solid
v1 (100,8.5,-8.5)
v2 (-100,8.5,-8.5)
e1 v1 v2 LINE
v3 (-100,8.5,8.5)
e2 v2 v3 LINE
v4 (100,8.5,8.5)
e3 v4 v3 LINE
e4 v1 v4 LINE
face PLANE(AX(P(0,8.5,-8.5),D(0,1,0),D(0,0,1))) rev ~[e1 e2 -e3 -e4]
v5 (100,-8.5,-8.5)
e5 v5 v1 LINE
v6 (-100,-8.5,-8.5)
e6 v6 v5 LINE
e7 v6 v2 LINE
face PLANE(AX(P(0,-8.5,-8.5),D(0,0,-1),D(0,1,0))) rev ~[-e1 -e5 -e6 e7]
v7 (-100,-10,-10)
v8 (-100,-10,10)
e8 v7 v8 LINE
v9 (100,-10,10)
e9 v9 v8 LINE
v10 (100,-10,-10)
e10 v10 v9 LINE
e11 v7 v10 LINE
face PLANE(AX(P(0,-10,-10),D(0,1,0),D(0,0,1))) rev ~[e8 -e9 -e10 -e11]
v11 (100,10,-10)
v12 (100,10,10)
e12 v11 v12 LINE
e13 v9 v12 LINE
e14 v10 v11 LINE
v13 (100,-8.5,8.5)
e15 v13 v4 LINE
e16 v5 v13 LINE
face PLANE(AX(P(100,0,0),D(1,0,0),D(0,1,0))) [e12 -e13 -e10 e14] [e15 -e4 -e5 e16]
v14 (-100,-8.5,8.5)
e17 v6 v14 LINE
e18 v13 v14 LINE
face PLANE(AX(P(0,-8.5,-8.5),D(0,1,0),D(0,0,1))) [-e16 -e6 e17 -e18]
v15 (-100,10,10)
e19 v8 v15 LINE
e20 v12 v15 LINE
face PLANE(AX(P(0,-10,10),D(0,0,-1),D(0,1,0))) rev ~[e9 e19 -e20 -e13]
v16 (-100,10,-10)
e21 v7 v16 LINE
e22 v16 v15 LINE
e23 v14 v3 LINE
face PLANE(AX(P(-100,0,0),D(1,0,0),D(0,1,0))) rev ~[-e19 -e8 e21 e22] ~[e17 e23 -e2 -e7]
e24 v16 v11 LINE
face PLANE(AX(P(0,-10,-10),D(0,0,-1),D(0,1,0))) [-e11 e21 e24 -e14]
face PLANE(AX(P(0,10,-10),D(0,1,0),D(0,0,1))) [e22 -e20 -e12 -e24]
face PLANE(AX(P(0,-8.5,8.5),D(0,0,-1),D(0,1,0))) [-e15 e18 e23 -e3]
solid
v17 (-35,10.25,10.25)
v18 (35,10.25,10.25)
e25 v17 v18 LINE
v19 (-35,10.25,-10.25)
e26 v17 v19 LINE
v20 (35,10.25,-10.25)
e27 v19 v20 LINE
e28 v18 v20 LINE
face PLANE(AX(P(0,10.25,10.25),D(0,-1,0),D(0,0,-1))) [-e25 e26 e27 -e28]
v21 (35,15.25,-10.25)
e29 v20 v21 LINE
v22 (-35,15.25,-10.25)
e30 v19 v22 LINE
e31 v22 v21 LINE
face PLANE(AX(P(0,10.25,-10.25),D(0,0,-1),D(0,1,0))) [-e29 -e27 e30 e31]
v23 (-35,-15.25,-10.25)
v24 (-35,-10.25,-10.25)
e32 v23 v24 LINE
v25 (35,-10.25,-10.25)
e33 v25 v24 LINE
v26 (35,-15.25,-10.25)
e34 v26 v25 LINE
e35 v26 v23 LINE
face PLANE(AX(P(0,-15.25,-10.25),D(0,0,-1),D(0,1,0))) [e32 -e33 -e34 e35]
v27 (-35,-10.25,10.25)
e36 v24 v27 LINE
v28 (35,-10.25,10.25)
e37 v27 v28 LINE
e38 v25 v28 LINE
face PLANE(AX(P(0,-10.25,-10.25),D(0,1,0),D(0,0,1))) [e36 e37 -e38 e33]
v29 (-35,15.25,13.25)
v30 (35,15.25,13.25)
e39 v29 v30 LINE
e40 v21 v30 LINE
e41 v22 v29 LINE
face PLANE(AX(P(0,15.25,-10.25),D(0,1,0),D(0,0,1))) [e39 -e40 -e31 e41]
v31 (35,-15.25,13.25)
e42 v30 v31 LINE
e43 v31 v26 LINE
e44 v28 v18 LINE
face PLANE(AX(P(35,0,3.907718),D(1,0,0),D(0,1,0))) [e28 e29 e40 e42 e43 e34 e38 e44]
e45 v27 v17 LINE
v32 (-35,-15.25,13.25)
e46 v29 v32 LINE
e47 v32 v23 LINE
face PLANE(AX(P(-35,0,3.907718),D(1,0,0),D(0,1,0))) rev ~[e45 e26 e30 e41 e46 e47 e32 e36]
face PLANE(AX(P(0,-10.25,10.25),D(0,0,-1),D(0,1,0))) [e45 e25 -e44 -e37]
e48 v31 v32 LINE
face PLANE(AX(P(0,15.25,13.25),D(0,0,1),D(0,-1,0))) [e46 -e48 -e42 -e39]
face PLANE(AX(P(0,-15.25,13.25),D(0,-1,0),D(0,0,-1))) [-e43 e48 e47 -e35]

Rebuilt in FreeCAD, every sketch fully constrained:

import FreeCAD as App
import Part
import Sketcher
from FreeCAD import Vector

doc = App.newDocument("Part")
body = doc.addObject("PartDesign::Body", "Body")

# Sketch on YZ plane
sketch1 = body.newObject("Sketcher::SketchObject", "Sketch")
sketch1.AttachmentSupport = (doc.getObject("YZ_Plane"), [""])
sketch1.MapMode = "FlatFace"
sketch1.addGeometry([
    Part.LineSegment(Vector(-10, 10, 0), Vector(-10, -10, 0)),  # 0
    Part.LineSegment(Vector(-10, -10, 0), Vector(10, -10, 0)),  # 1
    Part.LineSegment(Vector(10, -10, 0), Vector(10, 10, 0)),  # 2
    Part.LineSegment(Vector(10, 10, 0), Vector(-10, 10, 0)),  # 3
    Part.LineSegment(Vector(8, -8, 0), Vector(-8, -8, 0)),  # 4
    Part.LineSegment(Vector(-8, -8, 0), Vector(-8, 8, 0)),  # 5
    Part.LineSegment(Vector(-8, 8, 0), Vector(8, 8, 0)),  # 6
    Part.LineSegment(Vector(8, 8, 0), Vector(8, -8, 0)),  # 7
], False)
sketch1.addConstraint([
    Sketcher.Constraint("Coincident", 0, 2, 1, 1),
    Sketcher.Constraint("Coincident", 1, 2, 2, 1),
    Sketcher.Constraint("Coincident", 2, 2, 3, 1),
    Sketcher.Constraint("Coincident", 3, 2, 0, 1),
    Sketcher.Constraint("Coincident", 4, 2, 5, 1),
    Sketcher.Constraint("Coincident", 5, 2, 6, 1),
    Sketcher.Constraint("Coincident", 6, 2, 7, 1),
    Sketcher.Constraint("Coincident", 7, 2, 4, 1),
    Sketcher.Constraint("Vertical", 0),
    Sketcher.Constraint("Horizontal", 1),
    Sketcher.Constraint("Vertical", 2),
    Sketcher.Constraint("Horizontal", 3),
    Sketcher.Constraint("Horizontal", 4),
    Sketcher.Constraint("Vertical", 5),
    Sketcher.Constraint("Horizontal", 6),
    Sketcher.Constraint("Vertical", 7),
    Sketcher.Constraint("Symmetric", 0, 2, 2, 2, -1, 1),
    Sketcher.Constraint("Symmetric", 4, 2, 6, 2, -1, 1),
    Sketcher.Constraint("Equal", 3, 0),
    Sketcher.Constraint("Equal", 6, 5),
    Sketcher.Constraint("DistanceX", 1, 1, 1, 2, 20.0),
    Sketcher.Constraint("DistanceX", 4, 2, 4, 1, 17.0),
])
pad1 = body.newObject("PartDesign::Pad", "Pad")
pad1.Profile = sketch1
pad1.Length = 200
pad1.Midplane = True
body2 = doc.addObject("PartDesign::Body", "Body001")

# Sketch on YZ plane
sketch2 = body2.newObject("Sketcher::SketchObject", "Sketch001")
sketch2.AttachmentSupport = (doc.getObject("YZ_Plane001"), [""])
sketch2.MapMode = "FlatFace"
sketch2.addGeometry([
    Part.LineSegment(Vector(-10, -10, 0), Vector(-10, 10, 0)),  # 0
    Part.LineSegment(Vector(-10, 10, 0), Vector(10, 10, 0)),  # 1
    Part.LineSegment(Vector(10, 10, 0), Vector(10, -10, 0)),  # 2
    Part.LineSegment(Vector(10, -10, 0), Vector(15, -10, 0)),  # 3
    Part.LineSegment(Vector(15, -10, 0), Vector(15, 13, 0)),  # 4
    Part.LineSegment(Vector(15, 13, 0), Vector(-15, 13, 0)),  # 5
    Part.LineSegment(Vector(-15, 13, 0), Vector(-15, -10, 0)),  # 6
    Part.LineSegment(Vector(-15, -10, 0), Vector(-10, -10, 0)),  # 7
], False)
sketch2.addConstraint([
    Sketcher.Constraint("Coincident", 0, 2, 1, 1),
    Sketcher.Constraint("Coincident", 1, 2, 2, 1),
    Sketcher.Constraint("Coincident", 2, 2, 3, 1),
    Sketcher.Constraint("Coincident", 3, 2, 4, 1),
    Sketcher.Constraint("Coincident", 4, 2, 5, 1),
    Sketcher.Constraint("Coincident", 5, 2, 6, 1),
    Sketcher.Constraint("Coincident", 6, 2, 7, 1),
    Sketcher.Constraint("Coincident", 7, 2, 0, 1),
    Sketcher.Constraint("Vertical", 0),
    Sketcher.Constraint("Horizontal", 1),
    Sketcher.Constraint("Vertical", 2),
    Sketcher.Constraint("Horizontal", 3),
    Sketcher.Constraint("Vertical", 4),
    Sketcher.Constraint("Horizontal", 5),
    Sketcher.Constraint("Vertical", 6),
    Sketcher.Constraint("Horizontal", 7),
    Sketcher.Constraint("Symmetric", 0, 2, 2, 2, -1, 1),
    Sketcher.Constraint("Symmetric", 3, 2, 6, 2, -2),
    Sketcher.Constraint("Equal", 1, 0),
    Sketcher.Constraint("DistanceX", 3, 1, 3, 2, 5.0),
    Sketcher.Constraint("DistanceX", 1, 1, 1, 2, 20.5),
    Sketcher.Constraint("DistanceY", 4, 1, 4, 2, 23.5),
])
pad2 = body2.newObject("PartDesign::Pad", "Pad001")
pad2.Profile = sketch2
pad2.Length = 70
pad2.Midplane = True

doc.recompute()
